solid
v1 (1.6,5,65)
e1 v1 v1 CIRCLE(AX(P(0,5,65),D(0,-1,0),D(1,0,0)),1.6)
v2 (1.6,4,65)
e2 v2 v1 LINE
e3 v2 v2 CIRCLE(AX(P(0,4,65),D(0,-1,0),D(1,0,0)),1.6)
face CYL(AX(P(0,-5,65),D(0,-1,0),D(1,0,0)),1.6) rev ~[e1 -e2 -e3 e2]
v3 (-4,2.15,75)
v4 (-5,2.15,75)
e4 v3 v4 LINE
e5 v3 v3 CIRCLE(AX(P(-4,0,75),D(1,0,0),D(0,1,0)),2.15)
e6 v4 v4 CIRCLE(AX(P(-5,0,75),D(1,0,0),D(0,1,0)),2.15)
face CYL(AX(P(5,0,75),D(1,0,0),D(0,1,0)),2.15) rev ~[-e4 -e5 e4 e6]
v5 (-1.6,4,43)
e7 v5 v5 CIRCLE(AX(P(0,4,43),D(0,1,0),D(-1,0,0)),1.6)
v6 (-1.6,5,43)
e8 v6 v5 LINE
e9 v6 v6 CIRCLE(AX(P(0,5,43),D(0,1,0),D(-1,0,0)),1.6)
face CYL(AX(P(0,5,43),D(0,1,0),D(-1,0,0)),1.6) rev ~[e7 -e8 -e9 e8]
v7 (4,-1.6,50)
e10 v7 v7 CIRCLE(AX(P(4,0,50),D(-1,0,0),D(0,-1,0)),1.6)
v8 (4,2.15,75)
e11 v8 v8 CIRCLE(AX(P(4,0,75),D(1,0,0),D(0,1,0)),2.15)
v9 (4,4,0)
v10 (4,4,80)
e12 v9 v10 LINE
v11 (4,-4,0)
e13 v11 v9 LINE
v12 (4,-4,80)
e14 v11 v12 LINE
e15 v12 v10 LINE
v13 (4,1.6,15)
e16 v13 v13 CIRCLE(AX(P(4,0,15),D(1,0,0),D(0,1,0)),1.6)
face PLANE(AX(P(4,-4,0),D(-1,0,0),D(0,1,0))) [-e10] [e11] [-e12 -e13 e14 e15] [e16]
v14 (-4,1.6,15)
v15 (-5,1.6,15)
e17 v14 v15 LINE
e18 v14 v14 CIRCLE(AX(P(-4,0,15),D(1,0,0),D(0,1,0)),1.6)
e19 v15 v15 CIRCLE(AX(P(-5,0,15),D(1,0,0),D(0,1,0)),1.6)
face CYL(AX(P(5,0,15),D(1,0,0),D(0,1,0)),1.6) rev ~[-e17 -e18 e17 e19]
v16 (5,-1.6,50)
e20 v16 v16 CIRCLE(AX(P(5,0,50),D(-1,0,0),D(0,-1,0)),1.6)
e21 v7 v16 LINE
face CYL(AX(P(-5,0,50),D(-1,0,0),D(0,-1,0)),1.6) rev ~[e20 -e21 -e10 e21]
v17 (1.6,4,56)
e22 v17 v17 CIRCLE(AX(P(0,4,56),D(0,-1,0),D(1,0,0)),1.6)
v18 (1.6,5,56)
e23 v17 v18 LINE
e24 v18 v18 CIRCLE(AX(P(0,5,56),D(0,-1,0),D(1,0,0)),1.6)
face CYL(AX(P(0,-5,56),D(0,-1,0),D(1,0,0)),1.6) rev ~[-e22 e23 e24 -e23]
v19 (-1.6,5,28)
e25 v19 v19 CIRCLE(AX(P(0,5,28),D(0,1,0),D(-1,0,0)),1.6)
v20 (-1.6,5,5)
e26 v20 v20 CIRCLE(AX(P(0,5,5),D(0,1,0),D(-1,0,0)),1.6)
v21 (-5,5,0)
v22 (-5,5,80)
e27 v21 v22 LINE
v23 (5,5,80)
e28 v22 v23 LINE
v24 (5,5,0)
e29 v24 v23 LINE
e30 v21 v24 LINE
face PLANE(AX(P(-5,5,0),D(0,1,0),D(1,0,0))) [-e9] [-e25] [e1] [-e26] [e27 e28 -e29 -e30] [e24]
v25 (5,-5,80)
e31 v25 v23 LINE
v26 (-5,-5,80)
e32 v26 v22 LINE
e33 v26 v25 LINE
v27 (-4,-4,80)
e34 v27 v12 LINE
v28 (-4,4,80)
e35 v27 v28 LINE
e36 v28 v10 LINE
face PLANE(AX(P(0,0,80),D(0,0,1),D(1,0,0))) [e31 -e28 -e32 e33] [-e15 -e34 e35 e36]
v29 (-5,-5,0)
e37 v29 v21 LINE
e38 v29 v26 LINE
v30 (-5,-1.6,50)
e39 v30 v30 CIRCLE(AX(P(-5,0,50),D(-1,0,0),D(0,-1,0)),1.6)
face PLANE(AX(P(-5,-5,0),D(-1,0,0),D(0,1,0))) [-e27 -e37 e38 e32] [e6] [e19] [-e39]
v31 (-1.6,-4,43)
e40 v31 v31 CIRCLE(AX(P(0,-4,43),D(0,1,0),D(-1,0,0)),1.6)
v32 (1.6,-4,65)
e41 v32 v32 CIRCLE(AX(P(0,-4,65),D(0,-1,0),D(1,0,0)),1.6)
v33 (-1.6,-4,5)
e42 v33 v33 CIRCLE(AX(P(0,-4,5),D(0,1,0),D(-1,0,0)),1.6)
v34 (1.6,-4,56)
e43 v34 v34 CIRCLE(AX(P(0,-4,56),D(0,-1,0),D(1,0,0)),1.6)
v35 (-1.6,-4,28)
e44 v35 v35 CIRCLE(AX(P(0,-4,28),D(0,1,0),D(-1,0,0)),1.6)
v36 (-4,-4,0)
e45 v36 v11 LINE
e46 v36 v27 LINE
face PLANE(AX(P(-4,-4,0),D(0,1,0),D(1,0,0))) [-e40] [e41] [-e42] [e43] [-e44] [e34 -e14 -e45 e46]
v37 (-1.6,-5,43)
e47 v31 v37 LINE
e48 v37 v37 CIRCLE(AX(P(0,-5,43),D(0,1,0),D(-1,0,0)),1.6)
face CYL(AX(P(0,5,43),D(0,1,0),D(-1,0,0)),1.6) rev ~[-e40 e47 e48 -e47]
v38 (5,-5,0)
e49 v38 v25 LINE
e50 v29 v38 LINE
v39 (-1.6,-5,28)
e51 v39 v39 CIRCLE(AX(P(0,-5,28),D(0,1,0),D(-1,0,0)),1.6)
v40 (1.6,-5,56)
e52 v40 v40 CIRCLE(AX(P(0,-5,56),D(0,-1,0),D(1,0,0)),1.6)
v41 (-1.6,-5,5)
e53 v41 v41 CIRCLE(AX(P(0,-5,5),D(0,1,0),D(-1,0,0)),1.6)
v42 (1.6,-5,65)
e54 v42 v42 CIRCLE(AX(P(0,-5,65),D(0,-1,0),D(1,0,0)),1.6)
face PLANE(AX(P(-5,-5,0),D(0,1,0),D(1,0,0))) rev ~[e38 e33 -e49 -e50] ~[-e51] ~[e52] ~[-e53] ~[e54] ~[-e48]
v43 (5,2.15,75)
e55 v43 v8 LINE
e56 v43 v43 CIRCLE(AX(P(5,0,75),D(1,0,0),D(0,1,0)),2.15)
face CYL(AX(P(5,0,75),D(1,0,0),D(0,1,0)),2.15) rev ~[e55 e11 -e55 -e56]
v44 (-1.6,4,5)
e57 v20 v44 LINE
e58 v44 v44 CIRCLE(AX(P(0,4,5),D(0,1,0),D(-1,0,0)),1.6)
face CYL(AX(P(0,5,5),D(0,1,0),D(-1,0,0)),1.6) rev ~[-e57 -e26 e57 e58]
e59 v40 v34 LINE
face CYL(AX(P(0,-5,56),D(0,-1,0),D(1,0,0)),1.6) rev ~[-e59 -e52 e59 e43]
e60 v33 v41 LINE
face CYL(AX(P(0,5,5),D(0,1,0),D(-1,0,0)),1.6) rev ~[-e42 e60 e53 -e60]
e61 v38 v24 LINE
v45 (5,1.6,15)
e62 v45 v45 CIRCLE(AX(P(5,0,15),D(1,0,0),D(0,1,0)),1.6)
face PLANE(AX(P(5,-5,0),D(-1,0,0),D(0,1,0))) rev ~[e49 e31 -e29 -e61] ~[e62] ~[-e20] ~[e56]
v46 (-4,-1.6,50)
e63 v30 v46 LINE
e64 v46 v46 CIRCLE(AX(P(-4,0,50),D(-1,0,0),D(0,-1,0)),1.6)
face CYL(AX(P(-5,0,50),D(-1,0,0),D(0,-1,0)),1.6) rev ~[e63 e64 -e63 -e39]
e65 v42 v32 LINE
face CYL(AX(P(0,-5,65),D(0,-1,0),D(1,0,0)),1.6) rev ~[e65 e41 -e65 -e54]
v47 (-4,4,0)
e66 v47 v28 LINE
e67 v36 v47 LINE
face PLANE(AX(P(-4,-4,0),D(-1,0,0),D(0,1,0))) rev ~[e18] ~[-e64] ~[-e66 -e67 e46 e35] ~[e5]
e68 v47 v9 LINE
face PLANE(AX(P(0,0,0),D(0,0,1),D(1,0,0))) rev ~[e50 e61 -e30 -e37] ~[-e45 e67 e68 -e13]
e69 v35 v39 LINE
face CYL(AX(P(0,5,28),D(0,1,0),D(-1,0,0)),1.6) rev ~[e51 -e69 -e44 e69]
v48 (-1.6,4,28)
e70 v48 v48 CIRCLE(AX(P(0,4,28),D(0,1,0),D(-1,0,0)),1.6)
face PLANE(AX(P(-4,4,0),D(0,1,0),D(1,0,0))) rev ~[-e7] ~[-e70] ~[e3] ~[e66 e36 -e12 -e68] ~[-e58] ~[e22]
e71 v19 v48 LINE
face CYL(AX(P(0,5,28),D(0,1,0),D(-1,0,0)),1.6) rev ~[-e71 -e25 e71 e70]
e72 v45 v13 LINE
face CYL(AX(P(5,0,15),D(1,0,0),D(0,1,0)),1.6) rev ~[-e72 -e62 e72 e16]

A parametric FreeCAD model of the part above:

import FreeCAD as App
import Part
import Sketcher

V = App.Vector
Q = App.Units.Quantity


def add_polygon(sketch, points):
    """Adds a closed chain of lines whose ends are joined by coincident constraints."""
    first, n = sketch.GeometryCount, len(points)
    for a, b in zip(points, points[1:] + points[:1]):
        sketch.addGeometry(Part.LineSegment(App.Vector(*a, 0), App.Vector(*b, 0)), False)
    for i in range(n):
        sketch.addConstraint(Sketcher.Constraint("Coincident", first + i, 2, first + (i + 1) % n, 1))

doc = App.newDocument("Part")
body = doc.addObject("PartDesign::Body", "Body")

# Sketch on XY plane
sketch1 = body.newObject("Sketcher::SketchObject", "Sketch")
sketch1.AttachmentSupport = (doc.getObject("XY_Plane"), [""])
sketch1.MapMode = "FlatFace"
add_polygon(sketch1, [(-5, 5), (-5, -5), (5, -5), (5, 5)])  # lines 0-3
add_polygon(sketch1, [(4, -4), (-4, -4), (-4, 4), (4, 4)])  # lines 4-7
sketch1.addConstraint([
    Sketcher.Constraint("Vertical", 0),
    Sketcher.Constraint("Horizontal", 1),
    Sketcher.Constraint("Vertical", 2),
    Sketcher.Constraint("Horizontal", 3),
    Sketcher.Constraint("Horizontal", 4),
    Sketcher.Constraint("Vertical", 5),
    Sketcher.Constraint("Horizontal", 6),
    Sketcher.Constraint("Vertical", 7),
    Sketcher.Constraint("Symmetric", 0, 2, 2, 2, -1, 1),
    Sketcher.Constraint("Symmetric", 4, 2, 6, 2, -1, 1),
    Sketcher.Constraint("Equal", 3, 0),
    Sketcher.Constraint("Equal", 6, 5),
    Sketcher.Constraint("DistanceX", 1, 1, 1, 2, Q("10 mm")),
    Sketcher.Constraint("DistanceX", 4, 2, 4, 1, Q("8 mm")),
])
pad1 = body.newObject("PartDesign::Pad", "Pad")
pad1.Profile = sketch1
pad1.Length = 80

# Sketch on XZ plane
sketch2 = body.newObject("Sketcher::SketchObject", "Sketch001")
sketch2.AttachmentSupport = (doc.getObject("XZ_Plane"), [""])
sketch2.MapMode = "FlatFace"
sketch2.AttachmentOffset = App.Placement(V(0, 0, -5), App.Rotation())
sketch2.addGeometry(Part.Circle(V(0, 5, 0), V(0, 0, 1), 1.6), False)
sketch2.addConstraint([
    Sketcher.Constraint("PointOnObject", 0, 3, -2),
    Sketcher.Constraint("Diameter", 0, Q("3.2 mm")),
    Sketcher.Constraint("DistanceY", -1, 1, 0, 3, Q("5 mm")),
])
pocket1 = body.newObject("PartDesign::Pocket", "Pocket")
pocket1.Profile = sketch2
pocket1.Type = "ThroughAll"
pocket1.Reversed = True

# Sketch on YZ plane
sketch3 = body.newObject("Sketcher::SketchObject", "Sketch002")
sketch3.AttachmentSupport = (doc.getObject("YZ_Plane"), [""])
sketch3.MapMode = "FlatFace"
sketch3.AttachmentOffset = App.Placement(V(0, 0, 5), App.Rotation())
sketch3.addGeometry(Part.Circle(V(0, 15, 0), V(0, 0, 1), 1.6), False)
sketch3.addConstraint([
    Sketcher.Constraint("PointOnObject", 0, 3, -2),
    Sketcher.Constraint("Diameter", 0, Q("3.2 mm")),
    Sketcher.Constraint("DistanceY", -1, 1, 0, 3, Q("15 mm")),
])
pocket2 = body.newObject("PartDesign::Pocket", "Pocket001")
pocket2.Profile = sketch3
pocket2.Type = "ThroughAll"

# Sketch on XZ plane
sketch4 = body.newObject("Sketcher::SketchObject", "Sketch003")
sketch4.AttachmentSupport = (doc.getObject("XZ_Plane"), [""])
sketch4.MapMode = "FlatFace"
sketch4.AttachmentOffset = App.Placement(V(0, 0, 5), App.Rotation())
sketch4.addGeometry([
    Part.Circle(V(0, 65, 0), V(0, 0, 1), 1.6),
    Part.Circle(V(0, 56, 0), V(0, 0, 1), 1.6),
], False)
sketch4.addConstraint([
    Sketcher.Constraint("Equal", 0, 1),
    Sketcher.Constraint("PointOnObject", 0, 3, -2),
    Sketcher.Constraint("PointOnObject", 1, 3, -2),
    Sketcher.Constraint("Diameter", 0, Q("3.2 mm")),
    Sketcher.Constraint("DistanceY", -1, 1, 0, 3, Q("65 mm")),
    Sketcher.Constraint("DistanceY", -1, 1, 1, 3, Q("56 mm")),
])
pocket3 = body.newObject("PartDesign::Pocket", "Pocket002")
pocket3.Profile = sketch4
pocket3.Type = "ThroughAll"

# Sketch on YZ plane
sketch5 = body.newObject("Sketcher::SketchObject", "Sketch004")
sketch5.AttachmentSupport = (doc.getObject("YZ_Plane"), [""])
sketch5.MapMode = "FlatFace"
sketch5.AttachmentOffset = App.Placement(V(0, 0, -5), App.Rotation())
sketch5.addGeometry(Part.Circle(V(0, 50, 0), V(0, 0, 1), 1.6), False)
sketch5.addConstraint([
    Sketcher.Constraint("PointOnObject", 0, 3, -2),
    Sketcher.Constraint("Diameter", 0, Q("3.2 mm")),
    Sketcher.Constraint("DistanceY", -1, 1, 0, 3, Q("50 mm")),
])
pocket4 = body.newObject("PartDesign::Pocket", "Pocket003")
pocket4.Profile = sketch5
pocket4.Type = "ThroughAll"
pocket4.Reversed = True

# Sketch on XZ plane
sketch6 = body.newObject("Sketcher::SketchObject", "Sketch005")
sketch6.AttachmentSupport = (doc.getObject("XZ_Plane"), [""])
sketch6.MapMode = "FlatFace"
sketch6.AttachmentOffset = App.Placement(V(0, 0, -5), App.Rotation())
sketch6.addGeometry([
    Part.Circle(V(0, 43, 0), V(0, 0, 1), 1.6),
    Part.Circle(V(0, 28, 0), V(0, 0, 1), 1.6),
], False)
sketch6.addConstraint([
    Sketcher.Constraint("Equal", 0, 1),
    Sketcher.Constraint("PointOnObject", 0, 3, -2),
    Sketcher.Constraint("PointOnObject", 1, 3, -2),
    Sketcher.Constraint("Diameter", 0, Q("3.2 mm")),
    Sketcher.Constraint("DistanceY", -1, 1, 0, 3, Q("43 mm")),
    Sketcher.Constraint("DistanceY", -1, 1, 1, 3, Q("28 mm")),
])
pocket5 = body.newObject("PartDesign::Pocket", "Pocket004")
pocket5.Profile = sketch6
pocket5.Type = "ThroughAll"
pocket5.Reversed = True

# Sketch on YZ plane
sketch7 = body.newObject("Sketcher::SketchObject", "Sketch006")
sketch7.AttachmentSupport = (doc.getObject("YZ_Plane"), [""])
sketch7.MapMode = "FlatFace"
sketch7.AttachmentOffset = App.Placement(V(0, 0, 5), App.Rotation())
sketch7.addGeometry(Part.Circle(V(0, 75, 0), V(0, 0, 1), 2.1), False)
sketch7.addConstraint([
    Sketcher.Constraint("PointOnObject", 0, 3, -2),
    Sketcher.Constraint("Diameter", 0, Q("4.3 mm")),
    Sketcher.Constraint("DistanceY", -1, 1, 0, 3, Q("75 mm")),
])
pocket6 = body.newObject("PartDesign::Pocket", "Pocket005")
pocket6.Profile = sketch7
pocket6.Type = "ThroughAll"

doc.recompute()
